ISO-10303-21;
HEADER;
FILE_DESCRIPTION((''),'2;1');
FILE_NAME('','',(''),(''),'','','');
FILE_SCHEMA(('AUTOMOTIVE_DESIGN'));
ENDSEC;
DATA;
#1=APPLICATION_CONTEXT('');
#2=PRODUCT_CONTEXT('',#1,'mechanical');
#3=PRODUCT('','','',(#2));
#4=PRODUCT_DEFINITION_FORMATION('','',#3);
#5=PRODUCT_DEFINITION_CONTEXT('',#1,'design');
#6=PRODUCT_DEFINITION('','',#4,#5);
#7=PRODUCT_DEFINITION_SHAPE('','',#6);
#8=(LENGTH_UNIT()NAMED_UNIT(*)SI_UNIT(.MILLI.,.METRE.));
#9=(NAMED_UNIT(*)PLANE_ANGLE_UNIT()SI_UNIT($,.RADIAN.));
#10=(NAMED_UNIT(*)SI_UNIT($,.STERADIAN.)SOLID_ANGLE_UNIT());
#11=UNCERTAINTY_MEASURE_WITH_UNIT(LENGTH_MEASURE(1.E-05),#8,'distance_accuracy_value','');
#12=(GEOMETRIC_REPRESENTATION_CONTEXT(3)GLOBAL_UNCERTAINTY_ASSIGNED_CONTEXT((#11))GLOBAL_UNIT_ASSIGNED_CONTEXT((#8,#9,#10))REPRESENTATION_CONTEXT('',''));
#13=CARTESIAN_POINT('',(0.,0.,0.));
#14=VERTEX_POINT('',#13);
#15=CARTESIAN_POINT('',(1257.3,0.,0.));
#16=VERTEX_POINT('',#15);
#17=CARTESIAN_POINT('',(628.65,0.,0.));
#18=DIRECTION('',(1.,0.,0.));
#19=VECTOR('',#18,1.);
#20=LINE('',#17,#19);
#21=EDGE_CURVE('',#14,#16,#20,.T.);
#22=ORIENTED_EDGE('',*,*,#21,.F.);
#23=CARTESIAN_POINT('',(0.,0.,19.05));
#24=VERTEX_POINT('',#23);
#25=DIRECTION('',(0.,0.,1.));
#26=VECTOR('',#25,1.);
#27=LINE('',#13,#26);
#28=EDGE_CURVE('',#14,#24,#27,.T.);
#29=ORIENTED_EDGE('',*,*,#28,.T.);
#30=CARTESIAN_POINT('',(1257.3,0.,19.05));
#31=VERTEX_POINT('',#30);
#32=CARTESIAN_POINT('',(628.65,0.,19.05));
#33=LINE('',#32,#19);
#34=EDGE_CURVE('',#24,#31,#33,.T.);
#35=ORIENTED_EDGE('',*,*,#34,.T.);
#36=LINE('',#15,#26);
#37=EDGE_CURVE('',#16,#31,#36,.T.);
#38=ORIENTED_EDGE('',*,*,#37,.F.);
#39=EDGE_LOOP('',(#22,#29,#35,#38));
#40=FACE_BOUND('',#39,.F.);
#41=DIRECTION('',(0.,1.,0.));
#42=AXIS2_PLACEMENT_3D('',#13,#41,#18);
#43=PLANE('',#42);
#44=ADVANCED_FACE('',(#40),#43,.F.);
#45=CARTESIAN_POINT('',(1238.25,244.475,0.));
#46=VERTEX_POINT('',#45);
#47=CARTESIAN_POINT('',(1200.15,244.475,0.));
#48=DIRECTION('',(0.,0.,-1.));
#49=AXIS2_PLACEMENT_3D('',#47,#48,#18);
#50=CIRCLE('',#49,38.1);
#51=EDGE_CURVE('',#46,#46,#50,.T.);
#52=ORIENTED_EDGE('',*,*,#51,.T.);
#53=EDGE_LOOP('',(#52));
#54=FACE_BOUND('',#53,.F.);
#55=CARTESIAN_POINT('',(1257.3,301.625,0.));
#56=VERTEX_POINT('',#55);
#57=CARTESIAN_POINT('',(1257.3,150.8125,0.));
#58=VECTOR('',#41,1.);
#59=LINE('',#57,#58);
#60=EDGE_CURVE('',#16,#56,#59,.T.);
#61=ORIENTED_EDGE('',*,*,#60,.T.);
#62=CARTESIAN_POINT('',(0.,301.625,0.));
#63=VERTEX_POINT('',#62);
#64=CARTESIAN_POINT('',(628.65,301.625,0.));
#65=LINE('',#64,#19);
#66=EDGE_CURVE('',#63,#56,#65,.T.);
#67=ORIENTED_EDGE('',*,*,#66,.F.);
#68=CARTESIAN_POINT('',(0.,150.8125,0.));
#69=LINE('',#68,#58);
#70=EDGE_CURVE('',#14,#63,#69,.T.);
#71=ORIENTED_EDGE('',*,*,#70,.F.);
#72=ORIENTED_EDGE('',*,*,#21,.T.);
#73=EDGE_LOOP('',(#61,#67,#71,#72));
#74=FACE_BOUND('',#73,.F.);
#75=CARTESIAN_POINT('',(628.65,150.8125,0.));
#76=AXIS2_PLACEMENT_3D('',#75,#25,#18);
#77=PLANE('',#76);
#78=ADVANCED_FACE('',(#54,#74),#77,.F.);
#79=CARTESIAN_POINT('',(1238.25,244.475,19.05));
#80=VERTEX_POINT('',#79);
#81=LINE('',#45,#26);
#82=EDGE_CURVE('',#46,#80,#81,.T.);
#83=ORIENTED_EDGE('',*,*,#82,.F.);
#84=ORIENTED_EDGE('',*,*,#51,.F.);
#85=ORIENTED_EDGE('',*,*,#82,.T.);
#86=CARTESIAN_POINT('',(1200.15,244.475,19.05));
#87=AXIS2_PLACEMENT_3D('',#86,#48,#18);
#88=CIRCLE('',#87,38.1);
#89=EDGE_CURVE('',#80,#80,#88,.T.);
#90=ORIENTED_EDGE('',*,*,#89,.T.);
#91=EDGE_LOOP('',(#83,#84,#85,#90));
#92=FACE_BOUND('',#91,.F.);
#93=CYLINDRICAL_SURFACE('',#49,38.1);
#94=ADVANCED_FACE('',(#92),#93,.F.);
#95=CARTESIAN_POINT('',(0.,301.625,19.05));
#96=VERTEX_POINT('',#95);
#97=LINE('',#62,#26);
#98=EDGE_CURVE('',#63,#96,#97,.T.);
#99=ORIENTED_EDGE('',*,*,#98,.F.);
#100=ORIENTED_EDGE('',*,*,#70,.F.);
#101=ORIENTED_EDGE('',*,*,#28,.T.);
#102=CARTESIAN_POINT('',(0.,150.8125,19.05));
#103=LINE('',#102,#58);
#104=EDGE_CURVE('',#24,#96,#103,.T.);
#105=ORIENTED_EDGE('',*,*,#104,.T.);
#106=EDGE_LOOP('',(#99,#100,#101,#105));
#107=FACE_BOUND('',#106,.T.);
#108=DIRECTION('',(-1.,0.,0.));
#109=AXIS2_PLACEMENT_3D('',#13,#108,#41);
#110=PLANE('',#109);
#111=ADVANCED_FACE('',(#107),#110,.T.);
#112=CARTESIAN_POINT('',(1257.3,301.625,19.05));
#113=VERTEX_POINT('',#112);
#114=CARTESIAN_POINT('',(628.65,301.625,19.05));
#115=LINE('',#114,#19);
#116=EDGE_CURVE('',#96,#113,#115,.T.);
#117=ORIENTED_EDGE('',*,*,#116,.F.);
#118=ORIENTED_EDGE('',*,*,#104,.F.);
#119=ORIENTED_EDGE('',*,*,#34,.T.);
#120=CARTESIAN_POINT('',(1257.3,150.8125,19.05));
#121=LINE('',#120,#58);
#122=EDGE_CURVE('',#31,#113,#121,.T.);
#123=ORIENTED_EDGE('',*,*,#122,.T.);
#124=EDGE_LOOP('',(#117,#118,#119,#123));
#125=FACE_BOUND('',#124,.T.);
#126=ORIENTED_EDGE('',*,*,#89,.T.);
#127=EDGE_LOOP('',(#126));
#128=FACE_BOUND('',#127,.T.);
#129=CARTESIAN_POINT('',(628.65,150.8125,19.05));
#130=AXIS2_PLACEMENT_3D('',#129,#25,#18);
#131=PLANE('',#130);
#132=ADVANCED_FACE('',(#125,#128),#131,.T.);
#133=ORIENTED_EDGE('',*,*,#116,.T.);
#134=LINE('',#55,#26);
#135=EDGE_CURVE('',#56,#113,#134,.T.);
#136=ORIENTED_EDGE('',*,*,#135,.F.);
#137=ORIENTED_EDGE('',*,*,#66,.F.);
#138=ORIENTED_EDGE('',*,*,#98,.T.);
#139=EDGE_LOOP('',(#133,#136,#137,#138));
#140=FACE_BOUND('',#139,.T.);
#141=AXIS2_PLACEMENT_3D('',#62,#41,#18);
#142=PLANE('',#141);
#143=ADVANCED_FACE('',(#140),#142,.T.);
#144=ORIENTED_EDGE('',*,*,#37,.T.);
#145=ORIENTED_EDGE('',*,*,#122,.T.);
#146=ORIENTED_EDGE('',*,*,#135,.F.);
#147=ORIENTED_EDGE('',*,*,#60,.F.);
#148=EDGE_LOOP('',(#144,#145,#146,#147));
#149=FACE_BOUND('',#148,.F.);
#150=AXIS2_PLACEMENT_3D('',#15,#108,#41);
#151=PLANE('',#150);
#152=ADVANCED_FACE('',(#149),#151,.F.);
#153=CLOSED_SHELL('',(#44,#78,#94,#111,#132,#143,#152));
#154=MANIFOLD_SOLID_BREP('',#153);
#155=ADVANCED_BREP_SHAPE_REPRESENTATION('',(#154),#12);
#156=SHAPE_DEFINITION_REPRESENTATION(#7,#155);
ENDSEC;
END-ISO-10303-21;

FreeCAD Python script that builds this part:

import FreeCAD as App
import Part
import Sketcher

V = App.Vector
Q = App.Units.Quantity


def add_polygon(sketch, points):
    """Adds a closed chain of lines whose ends are joined by coincident constraints."""
    first, n = sketch.GeometryCount, len(points)
    for a, b in zip(points, points[1:] + points[:1]):
        sketch.addGeometry(Part.LineSegment(App.Vector(*a, 0), App.Vector(*b, 0)), False)
    for i in range(n):
        sketch.addConstraint(Sketcher.Constraint("Coincident", first + i, 2, first + (i + 1) % n, 1))

doc = App.newDocument("Part")
body = doc.addObject("PartDesign::Body", "Body")

# Sketch on XY plane
sketch1 = body.newObject("Sketcher::SketchObject", "Sketch")
sketch1.AttachmentSupport = (doc.getObject("XY_Plane"), [""])
sketch1.MapMode = "FlatFace"
add_polygon(sketch1, [(0, 302), (0, 0), (1257, 0), (1257, 302)])  # lines 0-3
sketch1.addConstraint(Sketcher.Constraint("Vertical", 0))
sketch1.addConstraint(Sketcher.Constraint("Horizontal", 1))
sketch1.addConstraint(Sketcher.Constraint("Vertical", 2))
sketch1.addConstraint(Sketcher.Constraint("Horizontal", 3))
sketch1.addConstraint(Sketcher.Constraint("Coincident", 0, 2, -1, 1))
sketch1.addConstraint(Sketcher.Constraint("DistanceX", 1, 1, 1, 2, Q("49.5 in")))
sketch1.addConstraint(Sketcher.Constraint("DistanceY", 0, 2, 0, 1, Q("11.875 in")))
pad1 = body.newObject("PartDesign::Pad", "Pad")
pad1.Profile = sketch1
pad1.Length = Q("0.75 in")

# Sketch on XY plane
sketch2 = body.newObject("Sketcher::SketchObject", "Sketch001")
sketch2.AttachmentSupport = (doc.getObject("XY_Plane"), [""])
sketch2.MapMode = "FlatFace"
sketch2.addGeometry(Part.Circle(V(1200, 244, 0), V(0, 0, 1), 38), False)
sketch2.addConstraint(Sketcher.Constraint("Diameter", 0, Q("3 in")))
sketch2.addConstraint(Sketcher.Constraint("DistanceX", -1, 1, 0, 3, Q("47.25 in")))
sketch2.addConstraint(Sketcher.Constraint("DistanceY", -1, 1, 0, 3, Q("9.625 in")))
pocket1 = body.newObject("PartDesign::Pocket", "Pocket")
pocket1.Profile = sketch2
pocket1.Type = "ThroughAll"
pocket1.Reversed = True

doc.recompute()
